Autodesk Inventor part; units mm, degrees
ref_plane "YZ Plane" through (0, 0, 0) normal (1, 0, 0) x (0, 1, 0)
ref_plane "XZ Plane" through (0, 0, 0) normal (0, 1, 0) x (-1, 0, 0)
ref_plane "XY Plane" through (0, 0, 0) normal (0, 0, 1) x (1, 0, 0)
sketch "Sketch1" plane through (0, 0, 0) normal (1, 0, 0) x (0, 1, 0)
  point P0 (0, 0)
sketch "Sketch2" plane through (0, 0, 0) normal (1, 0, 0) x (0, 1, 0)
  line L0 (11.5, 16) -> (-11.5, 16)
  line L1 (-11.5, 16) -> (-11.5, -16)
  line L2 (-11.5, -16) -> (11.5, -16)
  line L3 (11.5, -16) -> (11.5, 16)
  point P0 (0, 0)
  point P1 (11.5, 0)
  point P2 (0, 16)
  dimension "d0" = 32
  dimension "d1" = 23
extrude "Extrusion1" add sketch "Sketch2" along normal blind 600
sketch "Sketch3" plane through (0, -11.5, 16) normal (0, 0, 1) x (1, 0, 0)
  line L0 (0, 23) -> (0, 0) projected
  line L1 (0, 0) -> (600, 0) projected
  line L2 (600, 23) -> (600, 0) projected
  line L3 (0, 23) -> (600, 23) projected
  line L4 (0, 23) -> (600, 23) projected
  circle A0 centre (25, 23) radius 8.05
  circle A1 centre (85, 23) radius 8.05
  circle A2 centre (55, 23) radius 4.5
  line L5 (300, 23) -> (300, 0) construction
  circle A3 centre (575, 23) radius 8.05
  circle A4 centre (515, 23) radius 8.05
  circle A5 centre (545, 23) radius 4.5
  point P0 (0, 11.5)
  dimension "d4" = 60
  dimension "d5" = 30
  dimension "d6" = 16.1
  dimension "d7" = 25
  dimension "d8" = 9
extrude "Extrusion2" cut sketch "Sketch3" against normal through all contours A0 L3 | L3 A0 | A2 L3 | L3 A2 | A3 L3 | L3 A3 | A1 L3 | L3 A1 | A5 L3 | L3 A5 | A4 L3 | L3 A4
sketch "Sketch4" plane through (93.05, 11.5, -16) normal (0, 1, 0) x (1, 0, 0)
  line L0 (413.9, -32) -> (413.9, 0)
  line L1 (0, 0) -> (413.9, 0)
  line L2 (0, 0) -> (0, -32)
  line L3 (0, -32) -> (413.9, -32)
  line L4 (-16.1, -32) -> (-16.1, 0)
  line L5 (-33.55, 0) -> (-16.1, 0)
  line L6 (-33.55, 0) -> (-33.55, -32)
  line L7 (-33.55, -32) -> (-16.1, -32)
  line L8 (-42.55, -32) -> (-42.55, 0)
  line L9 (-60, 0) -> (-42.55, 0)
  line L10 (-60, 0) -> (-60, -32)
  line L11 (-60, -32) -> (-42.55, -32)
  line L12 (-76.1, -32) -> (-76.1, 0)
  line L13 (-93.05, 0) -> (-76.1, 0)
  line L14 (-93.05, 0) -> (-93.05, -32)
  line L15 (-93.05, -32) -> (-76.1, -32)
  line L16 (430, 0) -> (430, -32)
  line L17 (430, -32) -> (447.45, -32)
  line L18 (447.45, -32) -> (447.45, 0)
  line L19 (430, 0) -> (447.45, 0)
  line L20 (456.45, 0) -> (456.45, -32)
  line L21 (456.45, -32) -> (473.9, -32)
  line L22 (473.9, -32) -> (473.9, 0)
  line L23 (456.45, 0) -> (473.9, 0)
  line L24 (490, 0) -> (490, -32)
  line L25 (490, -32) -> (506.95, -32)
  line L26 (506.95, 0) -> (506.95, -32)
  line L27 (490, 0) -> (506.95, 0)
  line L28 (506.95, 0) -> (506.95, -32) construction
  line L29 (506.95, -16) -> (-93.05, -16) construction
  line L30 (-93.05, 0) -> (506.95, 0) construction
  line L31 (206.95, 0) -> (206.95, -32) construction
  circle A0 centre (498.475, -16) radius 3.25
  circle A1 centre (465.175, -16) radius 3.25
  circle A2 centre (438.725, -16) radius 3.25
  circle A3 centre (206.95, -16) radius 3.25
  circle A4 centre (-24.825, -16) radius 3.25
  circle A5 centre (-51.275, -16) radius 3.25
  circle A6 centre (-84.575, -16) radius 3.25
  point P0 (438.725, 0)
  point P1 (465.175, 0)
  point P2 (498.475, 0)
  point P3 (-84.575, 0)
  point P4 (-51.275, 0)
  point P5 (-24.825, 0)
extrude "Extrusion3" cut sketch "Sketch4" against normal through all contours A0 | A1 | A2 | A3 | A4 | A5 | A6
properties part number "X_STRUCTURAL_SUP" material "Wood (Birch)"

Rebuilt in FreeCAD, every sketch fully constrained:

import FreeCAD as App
import Part
import Sketcher


def add_polygon(sketch, points):
    """Adds a closed chain of lines whose ends are joined by coincident constraints."""
    first, n = sketch.GeometryCount, len(points)
    for a, b in zip(points, points[1:] + points[:1]):
        sketch.addGeometry(Part.LineSegment(App.Vector(*a, 0), App.Vector(*b, 0)), False)
    for i in range(n):
        sketch.addConstraint(Sketcher.Constraint("Coincident", first + i, 2, first + (i + 1) % n, 1))

doc = App.newDocument("Part")
params = doc.addObject("Spreadsheet::Sheet", "Params")
for row, (alias, value) in enumerate([
    ("sketch1_width", "23 mm"),
    ("sketch1_height", "32 mm"),
    ("pad1_length", "600 mm"),
    ("sketch2_diameter", "9 mm"),
    ("sketch2_diameter2", "16.1 mm"),
    ("sketch3_diameter", "6.5 mm"),
], start=1):
    params.set(f"A{row}", alias)
    params.set(f"B{row}", "=" + value)
    params.setAlias(f"B{row}", alias)

body = doc.addObject("PartDesign::Body", "Body")

sketch1 = doc.addObject("Sketcher::SketchObject", "Sketch")
body.addObject(sketch1)
sketch1.AttachmentSupport = (doc.YZ_Plane, [""])
sketch1.MapMode = "FlatFace"
add_polygon(sketch1, [(11.5, -16), (11.5, 16), (-11.5, 16), (-11.5, -16)])
sketch1.addConstraint([
    Sketcher.Constraint("Vertical", 0),
    Sketcher.Constraint("Horizontal", 1),
    Sketcher.Constraint("Vertical", 2),
    Sketcher.Constraint("Horizontal", 3),
    Sketcher.Constraint("Symmetric", 0, 2, 2, 2, -1, 1),
    Sketcher.Constraint("DistanceX", 1, 2, 1, 1, 23.0),
    Sketcher.Constraint("DistanceY", 0, 1, 0, 2, 32.0),
])
sketch1.setExpression("Constraints[9]", "Params.sketch1_width")
sketch1.setExpression("Constraints[10]", "Params.sketch1_height")
pad1 = doc.addObject("PartDesign::Pad", "Pad")
body.addObject(pad1)
pad1.Profile = sketch1
pad1.setExpression("Length", "Params.pad1_length")

sketch2 = doc.addObject("Sketcher::SketchObject", "Sketch001")
body.addObject(sketch2)
sketch2.AttachmentSupport = (doc.XY_Plane, [""])
sketch2.MapMode = "FlatFace"
sketch2.AttachmentOffset = App.Placement(App.Vector(0, 0, 16), App.Rotation())
sketch2.addGeometry([
    Part.Circle(App.Vector(25, 11.5, 0), App.Vector(0, 0, 1), 8.05),
    Part.Circle(App.Vector(55, 11.5, 0), App.Vector(0, 0, 1), 4.5),
    Part.Circle(App.Vector(575, 11.5, 0), App.Vector(0, 0, 1), 8.05),
    Part.Circle(App.Vector(85, 11.5, 0), App.Vector(0, 0, 1), 8.05),
    Part.Circle(App.Vector(545, 11.5, 0), App.Vector(0, 0, 1), 4.5),
    Part.Circle(App.Vector(515, 11.5, 0), App.Vector(0, 0, 1), 8.05),
], False)
sketch2.addConstraint([
    Sketcher.Constraint("Equal", 0, 2),
    Sketcher.Constraint("Equal", 2, 3),
    Sketcher.Constraint("Equal", 1, 4),
    Sketcher.Constraint("Equal", 3, 5),
    Sketcher.Constraint("Horizontal", 0, 3, 1, 3),
    Sketcher.Constraint("Horizontal", 1, 3, 2, 3),
    Sketcher.Constraint("Horizontal", 2, 3, 3, 3),
    Sketcher.Constraint("Horizontal", 3, 3, 4, 3),
    Sketcher.Constraint("Horizontal", 4, 3, 5, 3),
    Sketcher.Constraint("Diameter", 1, 9.0),
    Sketcher.Constraint("Diameter", 0, 16.1),
    Sketcher.Constraint("DistanceX", -1, 1, 0, 3, 25.0),
    Sketcher.Constraint("DistanceX", 0, 3, 1, 3, 30.0),
    Sketcher.Constraint("DistanceX", 1, 3, 3, 3, 30.0),
    Sketcher.Constraint("DistanceX", 4, 3, 2, 3, 30.0),
    Sketcher.Constraint("DistanceX", 5, 3, 4, 3, 30.0),
    Sketcher.Constraint("DistanceX", -1, 1, 2, 3, 575.0),
    Sketcher.Constraint("DistanceY", -1, 1, 0, 3, 11.5),
])
sketch2.setExpression("Constraints[9]", "Params.sketch2_diameter")
sketch2.setExpression("Constraints[10]", "Params.sketch2_diameter2")
pocket1 = doc.addObject("PartDesign::Pocket", "Pocket")
body.addObject(pocket1)
pocket1.Profile = sketch2
pocket1.Type = "ThroughAll"

sketch3 = doc.addObject("Sketcher::SketchObject", "Sketch002")
body.addObject(sketch3)
sketch3.AttachmentSupport = (doc.XZ_Plane, [""])
sketch3.MapMode = "FlatFace"
sketch3.AttachmentOffset = App.Placement(App.Vector(0, 0, -11.5), App.Rotation())
sketch3.addGeometry([
    Part.Circle(App.Vector(591.525, 0, 0), App.Vector(0, 0, 1), 3.25),
    Part.Circle(App.Vector(558.225, 0, 0), App.Vector(0, 0, 1), 3.25),
    Part.Circle(App.Vector(531.775, 0, 0), App.Vector(0, 0, 1), 3.25),
    Part.Circle(App.Vector(300, 0, 0), App.Vector(0, 0, 1), 3.25),
    Part.Circle(App.Vector(68.225, 0, 0), App.Vector(0, 0, 1), 3.25),
    Part.Circle(App.Vector(41.775, 0, 0), App.Vector(0, 0, 1), 3.25),
    Part.Circle(App.Vector(8.475, 0, 0), App.Vector(0, 0, 1), 3.25),
], False)
sketch3.addConstraint([
    Sketcher.Constraint("Equal", 0, 1),
    Sketcher.Constraint("Equal", 1, 2),
    Sketcher.Constraint("Equal", 2, 3),
    Sketcher.Constraint("Equal", 3, 4),
    Sketcher.Constraint("Equal", 4, 5),
    Sketcher.Constraint("Equal", 5, 6),
    Sketcher.Constraint("PointOnObject", 0, 3, -1),
    Sketcher.Constraint("PointOnObject", 1, 3, -1),
    Sketcher.Constraint("PointOnObject", 2, 3, -1),
    Sketcher.Constraint("PointOnObject", 3, 3, -1),
    Sketcher.Constraint("PointOnObject", 4, 3, -1),
    Sketcher.Constraint("PointOnObject", 5, 3, -1),
    Sketcher.Constraint("PointOnObject", 6, 3, -1),
    Sketcher.Constraint("Diameter", 0, 6.5),
    Sketcher.Constraint("DistanceX", -1, 1, 3, 3, 300.0),
    Sketcher.Constraint("DistanceX", 4, 3, 1, 3, 490.0),
    Sketcher.Constraint("DistanceX", 5, 3, 2, 3, 490.0),
    Sketcher.Constraint("DistanceX", 1, 3, 0, 3, 33.3),
    Sketcher.Constraint("DistanceX", 6, 3, 5, 3, 33.3),
    Sketcher.Constraint("DistanceX", 2, 3, 1, 3, 26.45),
    Sketcher.Constraint("DistanceX", -1, 1, 0, 3, 591.525),
])
sketch3.setExpression("Constraints[13]", "Params.sketch3_diameter")
pocket2 = doc.addObject("PartDesign::Pocket", "Pocket001")
body.addObject(pocket2)
pocket2.Profile = sketch3
pocket2.Type = "ThroughAll"
pocket2.Reversed = True

doc.recompute()
